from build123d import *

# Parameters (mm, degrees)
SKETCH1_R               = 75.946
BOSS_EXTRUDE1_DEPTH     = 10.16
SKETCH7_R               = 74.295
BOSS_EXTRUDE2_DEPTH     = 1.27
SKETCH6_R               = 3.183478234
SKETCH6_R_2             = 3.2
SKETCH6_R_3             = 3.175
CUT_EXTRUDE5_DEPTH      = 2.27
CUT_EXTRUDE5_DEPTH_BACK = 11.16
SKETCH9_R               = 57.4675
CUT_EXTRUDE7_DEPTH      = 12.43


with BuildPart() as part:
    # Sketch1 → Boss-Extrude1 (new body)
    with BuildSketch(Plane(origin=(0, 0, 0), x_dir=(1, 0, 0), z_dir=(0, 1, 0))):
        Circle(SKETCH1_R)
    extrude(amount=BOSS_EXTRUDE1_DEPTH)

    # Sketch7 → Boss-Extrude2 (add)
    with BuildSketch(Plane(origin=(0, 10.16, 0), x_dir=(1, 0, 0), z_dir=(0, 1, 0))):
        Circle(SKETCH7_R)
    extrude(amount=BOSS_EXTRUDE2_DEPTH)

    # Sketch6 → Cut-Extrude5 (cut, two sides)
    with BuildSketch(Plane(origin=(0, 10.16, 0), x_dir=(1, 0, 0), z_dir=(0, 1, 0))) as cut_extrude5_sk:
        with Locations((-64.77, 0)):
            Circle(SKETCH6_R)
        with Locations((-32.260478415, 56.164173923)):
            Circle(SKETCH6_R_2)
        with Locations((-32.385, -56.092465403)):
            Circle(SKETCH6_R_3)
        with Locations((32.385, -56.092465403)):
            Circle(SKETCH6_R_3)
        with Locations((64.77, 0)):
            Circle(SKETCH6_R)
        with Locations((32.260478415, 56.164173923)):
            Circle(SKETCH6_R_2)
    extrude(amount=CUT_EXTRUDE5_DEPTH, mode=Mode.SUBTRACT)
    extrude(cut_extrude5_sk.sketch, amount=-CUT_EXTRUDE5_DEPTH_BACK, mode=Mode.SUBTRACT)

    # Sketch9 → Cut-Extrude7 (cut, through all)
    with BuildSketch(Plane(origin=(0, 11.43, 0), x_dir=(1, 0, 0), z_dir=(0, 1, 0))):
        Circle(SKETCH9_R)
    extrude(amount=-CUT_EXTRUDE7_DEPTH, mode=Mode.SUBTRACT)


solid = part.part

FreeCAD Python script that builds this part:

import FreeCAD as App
import Part
import Sketcher

V = App.Vector
Q = App.Units.Quantity

doc = App.newDocument("Part")
body = doc.addObject("PartDesign::Body", "Body")

# Sketch on XZ plane
sketch1 = doc.addObject("Sketcher::SketchObject", "Sketch")
body.addObject(sketch1)
sketch1.AttachmentSupport = (doc.XZ_Plane, [""])
sketch1.MapMode = "FlatFace"
sketch1.addGeometry(Part.Circle(V(0, 0, 0), V(0, 0, 1), 76), False)
sketch1.addConstraint([
    Sketcher.Constraint("Coincident", 0, 3, -1, 1),
    Sketcher.Constraint("Diameter", 0, Q("5.98 in")),
])
pad1 = doc.addObject("PartDesign::Pad", "Pad")
body.addObject(pad1)
pad1.Profile = sketch1
pad1.Length = Q("0.4 in")
pad1.Reversed = True

# Sketch on XZ plane
sketch2 = doc.addObject("Sketcher::SketchObject", "Sketch001")
body.addObject(sketch2)
sketch2.AttachmentSupport = (doc.XZ_Plane, [""])
sketch2.MapMode = "FlatFace"
sketch2.AttachmentOffset = App.Placement(V(0, 0, -0.4 * 25.4), App.Rotation())
sketch2.addGeometry(Part.Circle(V(0, 0, 0), V(0, 0, 1), 74), False)
sketch2.addConstraint([
    Sketcher.Constraint("Coincident", 0, 3, -1, 1),
    Sketcher.Constraint("Diameter", 0, Q("5.85 in")),
])
pad2 = doc.addObject("PartDesign::Pad", "Pad001")
body.addObject(pad2)
pad2.Profile = sketch2
pad2.Length = Q("0.05 in")
pad2.Reversed = True

# Sketch on XZ plane
sketch3 = doc.addObject("Sketcher::SketchObject", "Sketch002")
body.addObject(sketch3)
sketch3.AttachmentSupport = (doc.XZ_Plane, [""])
sketch3.MapMode = "FlatFace"
sketch3.AttachmentOffset = App.Placement(V(0, 0, -0.4 * 25.4), App.Rotation())
sketch3.addGeometry([
    Part.Circle(V(-64.8, 0, 0), V(0, 0, 1), 3.2),  # 0
    Part.Circle(V(-32.3, -56.2, 0), V(0, 0, 1), 3.2),  # 1
    Part.Circle(V(-32.4, 56.1, 0), V(0, 0, 1), 3.2),  # 2
    Part.Circle(V(32.4, 56.1, 0), V(0, 0, 1), 3.2),  # 3
    Part.Circle(V(64.8, 0, 0), V(0, 0, 1), 3.2),  # 4
    Part.Circle(V(32.3, -56.2, 0), V(0, 0, 1), 3.2),  # 5
], False)
sketch3.addConstraint([
    Sketcher.Constraint("Equal", 2, 3),
    Sketcher.Constraint("Equal", 0, 4),
    Sketcher.Constraint("Equal", 1, 5),
    Sketcher.Constraint("Symmetric", 0, 3, 4, 3, -1, 1),
    Sketcher.Constraint("Symmetric", 2, 3, 3, 3, -2),
    Sketcher.Constraint("Symmetric", 1, 3, 5, 3, -2),
    Sketcher.Constraint("PointOnObject", 0, 3, -1),
    Sketcher.Constraint("Diameter", 2, Q("0.25 in")),
    Sketcher.Constraint("DistanceX", 0, 3, 4, 3, Q("5.1 in")),
    Sketcher.Constraint("Diameter", 1, Q("6.4 mm")),
    Sketcher.Constraint("DistanceX", 2, 3, 3, 3, Q("2.55 in")),
    Sketcher.Constraint("Diameter", 0, Q("6.366956 mm")),
    Sketcher.Constraint("DistanceX", 1, 3, -1, 1, Q("32.260478 mm")),
    Sketcher.Constraint("DistanceY", 1, 3, 2, 3, Q("112.256639 mm")),
    Sketcher.Constraint("DistanceY", 1, 3, -1, 1, Q("56.164174 mm")),
])
pocket1 = doc.addObject("PartDesign::Pocket", "Pocket")
body.addObject(pocket1)
pocket1.Profile = sketch3
pocket1.Type = "ThroughAll"
pocket1.Midplane = True

# Sketch on XZ plane
sketch4 = doc.addObject("Sketcher::SketchObject", "Sketch003")
body.addObject(sketch4)
sketch4.AttachmentSupport = (doc.XZ_Plane, [""])
sketch4.MapMode = "FlatFace"
sketch4.AttachmentOffset = App.Placement(V(0, 0, -0.45 * 25.4), App.Rotation())
sketch4.addGeometry(Part.Circle(V(0, 0, 0), V(0, 0, 1), 57), False)
sketch4.addConstraint([
    Sketcher.Constraint("Coincident", 0, 3, -1, 1),
    Sketcher.Constraint("Diameter", 0, Q("4.525 in")),
])
pocket2 = doc.addObject("PartDesign::Pocket", "Pocket001")
body.addObject(pocket2)
pocket2.Profile = sketch4
pocket2.Type = "ThroughAll"
pocket2.Reversed = True

doc.recompute()
